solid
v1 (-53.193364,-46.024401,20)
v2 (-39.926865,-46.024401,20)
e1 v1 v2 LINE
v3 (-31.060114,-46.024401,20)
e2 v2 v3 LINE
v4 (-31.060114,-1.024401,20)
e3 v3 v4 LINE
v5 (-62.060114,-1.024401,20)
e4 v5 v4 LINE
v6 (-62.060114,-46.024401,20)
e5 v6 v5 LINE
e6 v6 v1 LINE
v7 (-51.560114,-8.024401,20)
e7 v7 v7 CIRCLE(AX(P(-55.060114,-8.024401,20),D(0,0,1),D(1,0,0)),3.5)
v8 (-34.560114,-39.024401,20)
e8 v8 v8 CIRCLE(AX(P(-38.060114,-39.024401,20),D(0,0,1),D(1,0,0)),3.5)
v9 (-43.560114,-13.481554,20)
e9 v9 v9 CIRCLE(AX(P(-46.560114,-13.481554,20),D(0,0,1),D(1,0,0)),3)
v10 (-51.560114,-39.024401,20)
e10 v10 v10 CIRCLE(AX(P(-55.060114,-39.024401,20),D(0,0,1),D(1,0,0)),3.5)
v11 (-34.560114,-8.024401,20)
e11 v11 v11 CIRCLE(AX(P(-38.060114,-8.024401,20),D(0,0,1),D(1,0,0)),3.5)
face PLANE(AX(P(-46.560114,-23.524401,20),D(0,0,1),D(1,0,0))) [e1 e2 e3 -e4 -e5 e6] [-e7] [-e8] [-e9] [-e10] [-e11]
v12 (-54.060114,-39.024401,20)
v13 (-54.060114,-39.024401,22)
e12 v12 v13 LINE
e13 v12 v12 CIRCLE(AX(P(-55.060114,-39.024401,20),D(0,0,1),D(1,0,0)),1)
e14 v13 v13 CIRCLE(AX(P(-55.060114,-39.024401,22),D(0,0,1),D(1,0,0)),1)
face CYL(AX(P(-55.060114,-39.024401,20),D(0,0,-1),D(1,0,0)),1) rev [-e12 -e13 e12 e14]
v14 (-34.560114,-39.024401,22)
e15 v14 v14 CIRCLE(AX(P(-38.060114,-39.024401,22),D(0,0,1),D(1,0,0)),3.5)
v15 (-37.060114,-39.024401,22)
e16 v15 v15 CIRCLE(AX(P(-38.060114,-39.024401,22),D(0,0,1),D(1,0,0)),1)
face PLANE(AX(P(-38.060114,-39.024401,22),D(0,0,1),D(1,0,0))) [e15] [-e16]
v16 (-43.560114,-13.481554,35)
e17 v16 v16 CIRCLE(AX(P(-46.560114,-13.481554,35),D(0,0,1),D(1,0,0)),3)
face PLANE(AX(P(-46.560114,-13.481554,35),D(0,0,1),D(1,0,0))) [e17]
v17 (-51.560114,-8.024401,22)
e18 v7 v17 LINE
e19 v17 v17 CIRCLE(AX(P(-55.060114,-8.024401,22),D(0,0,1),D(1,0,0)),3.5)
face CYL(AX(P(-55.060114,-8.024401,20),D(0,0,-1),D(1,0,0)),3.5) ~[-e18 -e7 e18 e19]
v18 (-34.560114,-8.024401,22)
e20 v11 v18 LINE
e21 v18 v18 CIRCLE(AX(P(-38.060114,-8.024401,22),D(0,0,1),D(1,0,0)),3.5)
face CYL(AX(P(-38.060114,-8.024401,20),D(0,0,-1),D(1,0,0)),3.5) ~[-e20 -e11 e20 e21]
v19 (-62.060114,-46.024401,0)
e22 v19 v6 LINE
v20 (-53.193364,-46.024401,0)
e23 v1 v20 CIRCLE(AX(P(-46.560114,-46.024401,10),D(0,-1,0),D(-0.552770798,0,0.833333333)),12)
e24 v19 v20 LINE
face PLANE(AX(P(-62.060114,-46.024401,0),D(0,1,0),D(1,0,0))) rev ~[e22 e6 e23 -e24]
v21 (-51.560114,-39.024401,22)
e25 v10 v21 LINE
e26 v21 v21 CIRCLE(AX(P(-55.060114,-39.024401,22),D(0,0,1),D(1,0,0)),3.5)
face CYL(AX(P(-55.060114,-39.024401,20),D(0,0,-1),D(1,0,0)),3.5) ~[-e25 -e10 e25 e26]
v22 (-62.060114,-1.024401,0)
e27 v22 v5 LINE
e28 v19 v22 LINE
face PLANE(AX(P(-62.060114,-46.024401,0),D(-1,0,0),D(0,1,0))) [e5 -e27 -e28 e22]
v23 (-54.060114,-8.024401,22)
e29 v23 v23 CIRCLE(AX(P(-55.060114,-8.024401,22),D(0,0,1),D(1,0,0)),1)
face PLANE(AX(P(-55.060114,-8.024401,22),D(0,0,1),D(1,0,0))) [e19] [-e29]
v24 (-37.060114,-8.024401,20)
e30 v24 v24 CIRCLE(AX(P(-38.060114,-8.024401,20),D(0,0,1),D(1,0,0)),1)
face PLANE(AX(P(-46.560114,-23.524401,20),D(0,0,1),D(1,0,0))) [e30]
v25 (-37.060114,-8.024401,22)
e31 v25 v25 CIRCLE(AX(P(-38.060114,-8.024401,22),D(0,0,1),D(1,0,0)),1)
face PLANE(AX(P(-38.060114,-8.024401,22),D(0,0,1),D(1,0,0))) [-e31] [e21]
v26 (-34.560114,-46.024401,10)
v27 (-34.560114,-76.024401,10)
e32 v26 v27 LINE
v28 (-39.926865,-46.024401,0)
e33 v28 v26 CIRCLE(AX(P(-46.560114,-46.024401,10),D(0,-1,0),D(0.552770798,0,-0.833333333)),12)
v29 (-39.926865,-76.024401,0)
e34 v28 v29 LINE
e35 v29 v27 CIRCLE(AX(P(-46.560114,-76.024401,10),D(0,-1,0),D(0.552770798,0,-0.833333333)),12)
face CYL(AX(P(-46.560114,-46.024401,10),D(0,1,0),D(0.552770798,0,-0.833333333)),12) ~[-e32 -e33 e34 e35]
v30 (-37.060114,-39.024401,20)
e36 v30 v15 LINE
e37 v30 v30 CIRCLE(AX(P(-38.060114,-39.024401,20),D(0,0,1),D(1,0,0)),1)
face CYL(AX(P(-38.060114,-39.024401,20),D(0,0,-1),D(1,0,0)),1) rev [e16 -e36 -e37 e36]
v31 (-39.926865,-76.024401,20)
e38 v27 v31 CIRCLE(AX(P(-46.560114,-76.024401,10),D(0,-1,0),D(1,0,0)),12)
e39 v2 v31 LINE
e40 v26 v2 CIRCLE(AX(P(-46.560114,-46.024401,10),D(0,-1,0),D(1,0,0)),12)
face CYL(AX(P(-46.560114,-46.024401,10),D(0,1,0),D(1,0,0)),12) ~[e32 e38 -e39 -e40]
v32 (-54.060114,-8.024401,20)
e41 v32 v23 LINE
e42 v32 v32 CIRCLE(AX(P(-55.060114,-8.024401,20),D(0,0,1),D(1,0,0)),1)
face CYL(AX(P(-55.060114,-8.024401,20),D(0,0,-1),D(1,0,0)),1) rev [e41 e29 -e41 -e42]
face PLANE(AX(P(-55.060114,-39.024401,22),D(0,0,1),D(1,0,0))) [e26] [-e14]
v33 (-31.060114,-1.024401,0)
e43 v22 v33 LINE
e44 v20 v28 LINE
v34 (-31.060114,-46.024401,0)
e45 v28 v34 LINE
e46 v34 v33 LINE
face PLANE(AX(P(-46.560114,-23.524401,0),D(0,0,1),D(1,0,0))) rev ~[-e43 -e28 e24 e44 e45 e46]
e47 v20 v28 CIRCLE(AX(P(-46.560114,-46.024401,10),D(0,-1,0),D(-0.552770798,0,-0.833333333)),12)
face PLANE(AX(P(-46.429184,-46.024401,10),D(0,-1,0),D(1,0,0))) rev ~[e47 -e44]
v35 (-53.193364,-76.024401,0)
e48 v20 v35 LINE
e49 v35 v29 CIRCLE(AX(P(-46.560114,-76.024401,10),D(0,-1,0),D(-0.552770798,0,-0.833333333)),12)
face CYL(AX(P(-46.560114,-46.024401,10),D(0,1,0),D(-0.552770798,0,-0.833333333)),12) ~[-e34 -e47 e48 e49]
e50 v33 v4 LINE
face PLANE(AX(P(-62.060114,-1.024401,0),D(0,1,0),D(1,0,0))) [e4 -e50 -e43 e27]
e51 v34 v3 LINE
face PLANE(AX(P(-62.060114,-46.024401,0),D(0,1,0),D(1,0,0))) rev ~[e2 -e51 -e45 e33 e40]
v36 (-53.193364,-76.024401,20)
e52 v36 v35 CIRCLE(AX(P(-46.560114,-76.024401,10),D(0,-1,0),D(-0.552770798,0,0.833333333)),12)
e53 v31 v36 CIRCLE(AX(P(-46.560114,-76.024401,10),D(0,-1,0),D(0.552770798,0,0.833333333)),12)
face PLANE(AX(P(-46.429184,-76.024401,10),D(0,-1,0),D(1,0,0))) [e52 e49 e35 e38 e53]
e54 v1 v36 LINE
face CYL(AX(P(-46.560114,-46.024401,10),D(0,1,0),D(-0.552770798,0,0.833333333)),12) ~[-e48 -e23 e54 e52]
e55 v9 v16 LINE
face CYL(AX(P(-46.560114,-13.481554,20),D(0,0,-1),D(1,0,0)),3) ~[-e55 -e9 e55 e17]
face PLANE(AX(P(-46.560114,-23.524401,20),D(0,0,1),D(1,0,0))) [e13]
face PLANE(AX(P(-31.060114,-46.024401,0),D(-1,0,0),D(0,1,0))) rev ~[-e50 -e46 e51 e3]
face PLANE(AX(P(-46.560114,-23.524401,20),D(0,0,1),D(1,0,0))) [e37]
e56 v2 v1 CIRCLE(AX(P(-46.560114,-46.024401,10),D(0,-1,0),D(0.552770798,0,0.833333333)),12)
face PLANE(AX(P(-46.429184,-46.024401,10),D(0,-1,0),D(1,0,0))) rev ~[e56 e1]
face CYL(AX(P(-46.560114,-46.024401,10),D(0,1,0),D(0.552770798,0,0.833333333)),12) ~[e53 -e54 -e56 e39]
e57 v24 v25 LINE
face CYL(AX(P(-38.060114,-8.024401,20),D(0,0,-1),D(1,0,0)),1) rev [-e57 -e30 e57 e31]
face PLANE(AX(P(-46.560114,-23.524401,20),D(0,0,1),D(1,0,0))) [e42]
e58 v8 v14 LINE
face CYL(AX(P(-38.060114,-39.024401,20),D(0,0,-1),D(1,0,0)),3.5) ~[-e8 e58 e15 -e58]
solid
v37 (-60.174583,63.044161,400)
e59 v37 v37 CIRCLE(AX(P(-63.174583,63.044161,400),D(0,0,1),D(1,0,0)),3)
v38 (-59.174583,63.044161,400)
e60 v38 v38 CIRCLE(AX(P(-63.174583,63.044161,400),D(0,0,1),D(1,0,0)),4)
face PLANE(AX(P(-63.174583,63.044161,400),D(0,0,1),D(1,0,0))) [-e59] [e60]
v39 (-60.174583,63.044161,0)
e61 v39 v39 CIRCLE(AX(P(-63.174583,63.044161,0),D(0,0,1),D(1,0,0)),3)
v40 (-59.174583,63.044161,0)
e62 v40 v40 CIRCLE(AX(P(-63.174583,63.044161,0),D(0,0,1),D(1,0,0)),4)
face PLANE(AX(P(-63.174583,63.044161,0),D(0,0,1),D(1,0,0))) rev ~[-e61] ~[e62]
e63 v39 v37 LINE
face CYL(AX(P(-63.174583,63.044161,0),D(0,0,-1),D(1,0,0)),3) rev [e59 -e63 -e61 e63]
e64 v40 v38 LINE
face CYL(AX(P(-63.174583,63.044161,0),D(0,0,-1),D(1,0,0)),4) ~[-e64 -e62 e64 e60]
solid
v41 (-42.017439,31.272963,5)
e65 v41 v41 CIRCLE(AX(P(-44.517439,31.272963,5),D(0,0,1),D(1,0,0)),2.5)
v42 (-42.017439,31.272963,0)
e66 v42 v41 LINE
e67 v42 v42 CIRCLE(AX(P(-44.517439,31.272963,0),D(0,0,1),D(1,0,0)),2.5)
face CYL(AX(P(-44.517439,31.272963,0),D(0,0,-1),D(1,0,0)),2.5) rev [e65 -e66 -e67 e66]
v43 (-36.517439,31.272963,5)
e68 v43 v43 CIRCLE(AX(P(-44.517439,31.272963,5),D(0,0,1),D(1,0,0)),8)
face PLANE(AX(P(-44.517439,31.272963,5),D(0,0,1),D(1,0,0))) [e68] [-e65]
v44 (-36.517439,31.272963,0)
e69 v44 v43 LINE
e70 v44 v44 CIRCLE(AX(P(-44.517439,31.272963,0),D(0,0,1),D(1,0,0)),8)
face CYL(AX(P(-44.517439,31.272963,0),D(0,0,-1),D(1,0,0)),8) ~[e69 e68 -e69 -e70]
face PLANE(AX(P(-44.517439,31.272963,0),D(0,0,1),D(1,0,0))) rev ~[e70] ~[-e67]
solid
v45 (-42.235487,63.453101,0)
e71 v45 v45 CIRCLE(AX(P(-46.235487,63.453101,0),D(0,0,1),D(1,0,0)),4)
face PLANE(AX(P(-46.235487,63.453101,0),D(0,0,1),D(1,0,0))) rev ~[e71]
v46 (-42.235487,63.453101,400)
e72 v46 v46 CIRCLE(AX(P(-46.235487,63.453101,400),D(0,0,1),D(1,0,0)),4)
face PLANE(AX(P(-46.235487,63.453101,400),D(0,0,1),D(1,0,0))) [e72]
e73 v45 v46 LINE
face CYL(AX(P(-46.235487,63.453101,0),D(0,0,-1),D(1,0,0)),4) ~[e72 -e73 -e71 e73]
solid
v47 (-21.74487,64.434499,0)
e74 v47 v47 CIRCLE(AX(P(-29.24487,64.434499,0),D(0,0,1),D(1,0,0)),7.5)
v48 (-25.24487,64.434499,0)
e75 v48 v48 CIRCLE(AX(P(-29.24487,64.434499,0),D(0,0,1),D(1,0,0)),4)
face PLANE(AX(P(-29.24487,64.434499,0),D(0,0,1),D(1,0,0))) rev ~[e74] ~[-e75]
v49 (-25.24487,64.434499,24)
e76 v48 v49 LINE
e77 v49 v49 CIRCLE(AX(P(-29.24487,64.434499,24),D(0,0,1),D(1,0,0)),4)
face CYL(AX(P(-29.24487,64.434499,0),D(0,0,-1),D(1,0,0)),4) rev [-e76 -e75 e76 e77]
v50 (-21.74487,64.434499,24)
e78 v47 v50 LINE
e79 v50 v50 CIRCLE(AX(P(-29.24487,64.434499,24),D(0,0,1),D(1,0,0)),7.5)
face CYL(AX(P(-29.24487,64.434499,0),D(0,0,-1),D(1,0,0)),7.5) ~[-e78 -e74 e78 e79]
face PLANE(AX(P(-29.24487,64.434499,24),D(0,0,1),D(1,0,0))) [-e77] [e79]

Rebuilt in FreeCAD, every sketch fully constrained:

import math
import FreeCAD as App
import Part
import Sketcher

V = App.Vector


def add_polygon(sketch, points):
    """Adds a closed chain of lines whose ends are joined by coincident constraints."""
    first, n = sketch.GeometryCount, len(points)
    for a, b in zip(points, points[1:] + points[:1]):
        sketch.addGeometry(Part.LineSegment(App.Vector(*a, 0), App.Vector(*b, 0)), False)
    for i in range(n):
        sketch.addConstraint(Sketcher.Constraint("Coincident", first + i, 2, first + (i + 1) % n, 1))

doc = App.newDocument("Part")
body = doc.addObject("PartDesign::Body", "Body")

# Sketch on XY plane
sketch1 = body.newObject("Sketcher::SketchObject", "Sketch")
sketch1.AttachmentSupport = (doc.getObject("XY_Plane"), [""])
sketch1.MapMode = "FlatFace"
sketch1.addGeometry([
    Part.Circle(V(-63.174583, 63.044161, 0), V(0, 0, 1), 4),
    Part.Circle(V(-63.174583, 63.044161, 0), V(0, 0, 1), 3),
], False)
sketch1.addConstraint([
    Sketcher.Constraint("Coincident", 1, 3, 0, 3),
    Sketcher.Constraint("Diameter", 0, 8.0),
    Sketcher.Constraint("Diameter", 1, 6.0),
    Sketcher.Constraint("DistanceY", -1, 1, 0, 3, 63.044161),
    Sketcher.Constraint("DistanceX", 0, 3, -1, 1, 63.174583),
])
pad1 = body.newObject("PartDesign::Pad", "Pad")
pad1.Profile = sketch1
pad1.Length = 400
body2 = doc.addObject("PartDesign::Body", "Body001")

# Sketch on XY plane
sketch2 = body2.newObject("Sketcher::SketchObject", "Sketch001")
sketch2.AttachmentSupport = (doc.getObject("XY_Plane001"), [""])
sketch2.MapMode = "FlatFace"
sketch2.addGeometry(Part.Circle(V(-46.235487, 63.453101, 0), V(0, 0, 1), 4), False)
sketch2.addConstraint([
    Sketcher.Constraint("Diameter", 0, 8.0),
    Sketcher.Constraint("DistanceY", -1, 1, 0, 3, 63.453101),
    Sketcher.Constraint("DistanceX", 0, 3, -1, 1, 46.235487),
])
pad2 = body2.newObject("PartDesign::Pad", "Pad001")
pad2.Profile = sketch2
pad2.Length = 400
body3 = doc.addObject("PartDesign::Body", "Body002")

# Sketch on XY plane
sketch3 = body3.newObject("Sketcher::SketchObject", "Sketch002")
sketch3.AttachmentSupport = (doc.getObject("XY_Plane002"), [""])
sketch3.MapMode = "FlatFace"
sketch3.addGeometry([
    Part.Circle(V(-29.24487, 64.434499, 0), V(0, 0, 1), 7.5),
    Part.Circle(V(-29.24487, 64.434499, 0), V(0, 0, 1), 4),
], False)
sketch3.addConstraint([
    Sketcher.Constraint("Coincident", 1, 3, 0, 3),
    Sketcher.Constraint("Diameter", 0, 15.0),
    Sketcher.Constraint("Diameter", 1, 8.0),
    Sketcher.Constraint("DistanceY", -1, 1, 0, 3, 64.434499),
    Sketcher.Constraint("DistanceX", 0, 3, -1, 1, 29.24487),
])
pad3 = body3.newObject("PartDesign::Pad", "Pad002")
pad3.Profile = sketch3
pad3.Length = 24
body4 = doc.addObject("PartDesign::Body", "Body003")

# Sketch on XY plane
sketch4 = body4.newObject("Sketcher::SketchObject", "Sketch003")
sketch4.AttachmentSupport = (doc.getObject("XY_Plane003"), [""])
sketch4.MapMode = "FlatFace"
add_polygon(sketch4, [(-62.060114, -1.024401), (-62.060114, -46.024401), (-31.060114, -46.024401), (-31.060114, -1.024401)])  # lines 0-3
sketch4.addConstraint([
    Sketcher.Constraint("Vertical", 0),
    Sketcher.Constraint("Horizontal", 1),
    Sketcher.Constraint("Vertical", 2),
    Sketcher.Constraint("Horizontal", 3),
    Sketcher.Constraint("DistanceX", 1, 1, 1, 2, 31.0),
    Sketcher.Constraint("DistanceY", 0, 2, 0, 1, 45.0),
    Sketcher.Constraint("DistanceY", 0, 2, -1, 1, 46.024401),
    Sketcher.Constraint("DistanceX", 0, 2, -1, 1, 62.060114),
])
pad4 = body4.newObject("PartDesign::Pad", "Pad003")
pad4.Profile = sketch4
pad4.Length = 20

# Sketch on XZ plane
sketch5 = body4.newObject("Sketcher::SketchObject", "Sketch004")
sketch5.AttachmentSupport = (doc.getObject("XZ_Plane003"), [""])
sketch5.MapMode = "FlatFace"
sketch5.AttachmentOffset = App.Placement(V(0, 0, 46.024401), App.Rotation())
sketch5.addGeometry([
    Part.ArcOfCircle(Part.Circle(V(-46.560114, 10, 0), V(0, 0, 1), 12), math.radians(-56.44269), math.radians(0)),  # 0
    Part.ArcOfCircle(Part.Circle(V(-46.560114, 10, 0), V(0, 0, 1), 12), math.radians(0), math.radians(56.44269)),  # 1
    Part.ArcOfCircle(Part.Circle(V(-46.560114, 10, 0), V(0, 0, 1), 12), math.radians(56.44269), math.radians(123.55731)),  # 2
    Part.ArcOfCircle(Part.Circle(V(-46.560114, 10, 0), V(0, 0, 1), 12), math.radians(123.55731), math.radians(236.44269)),  # 3
    Part.ArcOfCircle(Part.Circle(V(-46.560114, 10, 0), V(0, 0, 1), 12), math.radians(-123.55731), math.radians(-56.44269)),  # 4
], False)
sketch5.addConstraint([
    Sketcher.Constraint("Tangent", 0, 2, 1, 1),
    Sketcher.Constraint("Tangent", 1, 2, 2, 1),
    Sketcher.Constraint("Tangent", 2, 2, 3, 1),
    Sketcher.Constraint("Tangent", 3, 2, 4, 1),
    Sketcher.Constraint("Tangent", 4, 2, 0, 1),
    Sketcher.Constraint("Coincident", 2, 3, 0, 3),
    Sketcher.Constraint("PointOnObject", 3, 2, -1),
    Sketcher.Constraint("PointOnObject", 4, 2, -1),
    Sketcher.Constraint("Horizontal", 4, 3, 0, 2),
    Sketcher.Constraint("Horizontal", 1, 2, 2, 2),
    Sketcher.Constraint("Vertical", 2, 2, 3, 2),
    Sketcher.Constraint("Radius", 0, 12.0),
    Sketcher.Constraint("DistanceY", -1, 1, 0, 3, 10.0),
    Sketcher.Constraint("DistanceX", 0, 3, -1, 1, 46.560114),
])
pad5 = body4.newObject("PartDesign::Pad", "Pad004")
pad5.Profile = sketch5
pad5.Length = 30

# Sketch on XY plane
sketch6 = body4.newObject("Sketcher::SketchObject", "Sketch005")
sketch6.AttachmentSupport = (doc.getObject("XY_Plane003"), [""])
sketch6.MapMode = "FlatFace"
sketch6.AttachmentOffset = App.Placement(V(0, 0, 20), App.Rotation())
sketch6.addGeometry([
    Part.Circle(V(-55.060114, -8.024401, 0), V(0, 0, 1), 3.5),  # 0
    Part.Circle(V(-55.060114, -8.024401, 0), V(0, 0, 1), 1),  # 1
    Part.Circle(V(-38.060114, -8.024401, 0), V(0, 0, 1), 3.5),  # 2
    Part.Circle(V(-38.060114, -8.024401, 0), V(0, 0, 1), 1),  # 3
    Part.Circle(V(-38.060114, -39.024401, 0), V(0, 0, 1), 3.5),  # 4
    Part.Circle(V(-38.060114, -39.024401, 0), V(0, 0, 1), 1),  # 5
    Part.Circle(V(-55.060114, -39.024401, 0), V(0, 0, 1), 3.5),  # 6
    Part.Circle(V(-55.060114, -39.024401, 0), V(0, 0, 1), 1),  # 7
], False)
sketch6.addConstraint([
    Sketcher.Constraint("Coincident", 1, 3, 0, 3),
    Sketcher.Constraint("Coincident", 3, 3, 2, 3),
    Sketcher.Constraint("Coincident", 5, 3, 4, 3),
    Sketcher.Constraint("Coincident", 7, 3, 6, 3),
    Sketcher.Constraint("Equal", 0, 2),
    Sketcher.Constraint("Equal", 1, 3),
    Sketcher.Constraint("Equal", 2, 4),
    Sketcher.Constraint("Equal", 3, 5),
    Sketcher.Constraint("Equal", 4, 6),
    Sketcher.Constraint("Equal", 5, 7),
    Sketcher.Constraint("Horizontal", 1, 3, 2, 3),
    Sketcher.Constraint("Horizontal", 5, 3, 6, 3),
    Sketcher.Constraint("Vertical", 3, 3, 4, 3),
    Sketcher.Constraint("Vertical", 1, 3, 6, 3),
    Sketcher.Constraint("Diameter", 0, 7.0),
    Sketcher.Constraint("Diameter", 1, 2.0),
    Sketcher.Constraint("DistanceX", 0, 3, 2, 3, 17.0),
    Sketcher.Constraint("DistanceY", 4, 3, 2, 3, 31.0),
    Sketcher.Constraint("DistanceY", 0, 3, -1, 1, 8.024401),
    Sketcher.Constraint("DistanceX", 0, 3, -1, 1, 55.060114),
])
pad6 = body4.newObject("PartDesign::Pad", "Pad005")
pad6.Profile = sketch6
pad6.Length = 2

# Sketch on XY plane
sketch7 = body4.newObject("Sketcher::SketchObject", "Sketch006")
sketch7.AttachmentSupport = (doc.getObject("XY_Plane003"), [""])
sketch7.MapMode = "FlatFace"
sketch7.AttachmentOffset = App.Placement(V(0, 0, 20), App.Rotation())
sketch7.addGeometry(Part.Circle(V(-46.560114, -13.481554, 0), V(0, 0, 1), 3), False)
sketch7.addConstraint([
    Sketcher.Constraint("Diameter", 0, 6.0),
    Sketcher.Constraint("DistanceX", 0, 3, -1, 1, 46.560114),
    Sketcher.Constraint("DistanceY", 0, 3, -1, 1, 13.481554),
])
pad7 = body4.newObject("PartDesign::Pad", "Pad006")
pad7.Profile = sketch7
pad7.Length = 15
body5 = doc.addObject("PartDesign::Body", "Body004")

# Sketch on XY plane
sketch8 = body5.newObject("Sketcher::SketchObject", "Sketch007")
sketch8.AttachmentSupport = (doc.getObject("XY_Plane004"), [""])
sketch8.MapMode = "FlatFace"
sketch8.addGeometry([
    Part.Circle(V(-44.517439, 31.272963, 0), V(0, 0, 1), 8),
    Part.Circle(V(-44.517439, 31.272963, 0), V(0, 0, 1), 2.5),
], False)
sketch8.addConstraint([
    Sketcher.Constraint("Coincident", 1, 3, 0, 3),
    Sketcher.Constraint("Diameter", 0, 16.0),
    Sketcher.Constraint("Diameter", 1, 5.0),
    Sketcher.Constraint("DistanceX", 0, 3, -1, 1, 44.517439),
    Sketcher.Constraint("DistanceY", -1, 1, 0, 3, 31.272963),
])
pad8 = body5.newObject("PartDesign::Pad", "Pad007")
pad8.Profile = sketch8
pad8.Length = 5

doc.recompute()
